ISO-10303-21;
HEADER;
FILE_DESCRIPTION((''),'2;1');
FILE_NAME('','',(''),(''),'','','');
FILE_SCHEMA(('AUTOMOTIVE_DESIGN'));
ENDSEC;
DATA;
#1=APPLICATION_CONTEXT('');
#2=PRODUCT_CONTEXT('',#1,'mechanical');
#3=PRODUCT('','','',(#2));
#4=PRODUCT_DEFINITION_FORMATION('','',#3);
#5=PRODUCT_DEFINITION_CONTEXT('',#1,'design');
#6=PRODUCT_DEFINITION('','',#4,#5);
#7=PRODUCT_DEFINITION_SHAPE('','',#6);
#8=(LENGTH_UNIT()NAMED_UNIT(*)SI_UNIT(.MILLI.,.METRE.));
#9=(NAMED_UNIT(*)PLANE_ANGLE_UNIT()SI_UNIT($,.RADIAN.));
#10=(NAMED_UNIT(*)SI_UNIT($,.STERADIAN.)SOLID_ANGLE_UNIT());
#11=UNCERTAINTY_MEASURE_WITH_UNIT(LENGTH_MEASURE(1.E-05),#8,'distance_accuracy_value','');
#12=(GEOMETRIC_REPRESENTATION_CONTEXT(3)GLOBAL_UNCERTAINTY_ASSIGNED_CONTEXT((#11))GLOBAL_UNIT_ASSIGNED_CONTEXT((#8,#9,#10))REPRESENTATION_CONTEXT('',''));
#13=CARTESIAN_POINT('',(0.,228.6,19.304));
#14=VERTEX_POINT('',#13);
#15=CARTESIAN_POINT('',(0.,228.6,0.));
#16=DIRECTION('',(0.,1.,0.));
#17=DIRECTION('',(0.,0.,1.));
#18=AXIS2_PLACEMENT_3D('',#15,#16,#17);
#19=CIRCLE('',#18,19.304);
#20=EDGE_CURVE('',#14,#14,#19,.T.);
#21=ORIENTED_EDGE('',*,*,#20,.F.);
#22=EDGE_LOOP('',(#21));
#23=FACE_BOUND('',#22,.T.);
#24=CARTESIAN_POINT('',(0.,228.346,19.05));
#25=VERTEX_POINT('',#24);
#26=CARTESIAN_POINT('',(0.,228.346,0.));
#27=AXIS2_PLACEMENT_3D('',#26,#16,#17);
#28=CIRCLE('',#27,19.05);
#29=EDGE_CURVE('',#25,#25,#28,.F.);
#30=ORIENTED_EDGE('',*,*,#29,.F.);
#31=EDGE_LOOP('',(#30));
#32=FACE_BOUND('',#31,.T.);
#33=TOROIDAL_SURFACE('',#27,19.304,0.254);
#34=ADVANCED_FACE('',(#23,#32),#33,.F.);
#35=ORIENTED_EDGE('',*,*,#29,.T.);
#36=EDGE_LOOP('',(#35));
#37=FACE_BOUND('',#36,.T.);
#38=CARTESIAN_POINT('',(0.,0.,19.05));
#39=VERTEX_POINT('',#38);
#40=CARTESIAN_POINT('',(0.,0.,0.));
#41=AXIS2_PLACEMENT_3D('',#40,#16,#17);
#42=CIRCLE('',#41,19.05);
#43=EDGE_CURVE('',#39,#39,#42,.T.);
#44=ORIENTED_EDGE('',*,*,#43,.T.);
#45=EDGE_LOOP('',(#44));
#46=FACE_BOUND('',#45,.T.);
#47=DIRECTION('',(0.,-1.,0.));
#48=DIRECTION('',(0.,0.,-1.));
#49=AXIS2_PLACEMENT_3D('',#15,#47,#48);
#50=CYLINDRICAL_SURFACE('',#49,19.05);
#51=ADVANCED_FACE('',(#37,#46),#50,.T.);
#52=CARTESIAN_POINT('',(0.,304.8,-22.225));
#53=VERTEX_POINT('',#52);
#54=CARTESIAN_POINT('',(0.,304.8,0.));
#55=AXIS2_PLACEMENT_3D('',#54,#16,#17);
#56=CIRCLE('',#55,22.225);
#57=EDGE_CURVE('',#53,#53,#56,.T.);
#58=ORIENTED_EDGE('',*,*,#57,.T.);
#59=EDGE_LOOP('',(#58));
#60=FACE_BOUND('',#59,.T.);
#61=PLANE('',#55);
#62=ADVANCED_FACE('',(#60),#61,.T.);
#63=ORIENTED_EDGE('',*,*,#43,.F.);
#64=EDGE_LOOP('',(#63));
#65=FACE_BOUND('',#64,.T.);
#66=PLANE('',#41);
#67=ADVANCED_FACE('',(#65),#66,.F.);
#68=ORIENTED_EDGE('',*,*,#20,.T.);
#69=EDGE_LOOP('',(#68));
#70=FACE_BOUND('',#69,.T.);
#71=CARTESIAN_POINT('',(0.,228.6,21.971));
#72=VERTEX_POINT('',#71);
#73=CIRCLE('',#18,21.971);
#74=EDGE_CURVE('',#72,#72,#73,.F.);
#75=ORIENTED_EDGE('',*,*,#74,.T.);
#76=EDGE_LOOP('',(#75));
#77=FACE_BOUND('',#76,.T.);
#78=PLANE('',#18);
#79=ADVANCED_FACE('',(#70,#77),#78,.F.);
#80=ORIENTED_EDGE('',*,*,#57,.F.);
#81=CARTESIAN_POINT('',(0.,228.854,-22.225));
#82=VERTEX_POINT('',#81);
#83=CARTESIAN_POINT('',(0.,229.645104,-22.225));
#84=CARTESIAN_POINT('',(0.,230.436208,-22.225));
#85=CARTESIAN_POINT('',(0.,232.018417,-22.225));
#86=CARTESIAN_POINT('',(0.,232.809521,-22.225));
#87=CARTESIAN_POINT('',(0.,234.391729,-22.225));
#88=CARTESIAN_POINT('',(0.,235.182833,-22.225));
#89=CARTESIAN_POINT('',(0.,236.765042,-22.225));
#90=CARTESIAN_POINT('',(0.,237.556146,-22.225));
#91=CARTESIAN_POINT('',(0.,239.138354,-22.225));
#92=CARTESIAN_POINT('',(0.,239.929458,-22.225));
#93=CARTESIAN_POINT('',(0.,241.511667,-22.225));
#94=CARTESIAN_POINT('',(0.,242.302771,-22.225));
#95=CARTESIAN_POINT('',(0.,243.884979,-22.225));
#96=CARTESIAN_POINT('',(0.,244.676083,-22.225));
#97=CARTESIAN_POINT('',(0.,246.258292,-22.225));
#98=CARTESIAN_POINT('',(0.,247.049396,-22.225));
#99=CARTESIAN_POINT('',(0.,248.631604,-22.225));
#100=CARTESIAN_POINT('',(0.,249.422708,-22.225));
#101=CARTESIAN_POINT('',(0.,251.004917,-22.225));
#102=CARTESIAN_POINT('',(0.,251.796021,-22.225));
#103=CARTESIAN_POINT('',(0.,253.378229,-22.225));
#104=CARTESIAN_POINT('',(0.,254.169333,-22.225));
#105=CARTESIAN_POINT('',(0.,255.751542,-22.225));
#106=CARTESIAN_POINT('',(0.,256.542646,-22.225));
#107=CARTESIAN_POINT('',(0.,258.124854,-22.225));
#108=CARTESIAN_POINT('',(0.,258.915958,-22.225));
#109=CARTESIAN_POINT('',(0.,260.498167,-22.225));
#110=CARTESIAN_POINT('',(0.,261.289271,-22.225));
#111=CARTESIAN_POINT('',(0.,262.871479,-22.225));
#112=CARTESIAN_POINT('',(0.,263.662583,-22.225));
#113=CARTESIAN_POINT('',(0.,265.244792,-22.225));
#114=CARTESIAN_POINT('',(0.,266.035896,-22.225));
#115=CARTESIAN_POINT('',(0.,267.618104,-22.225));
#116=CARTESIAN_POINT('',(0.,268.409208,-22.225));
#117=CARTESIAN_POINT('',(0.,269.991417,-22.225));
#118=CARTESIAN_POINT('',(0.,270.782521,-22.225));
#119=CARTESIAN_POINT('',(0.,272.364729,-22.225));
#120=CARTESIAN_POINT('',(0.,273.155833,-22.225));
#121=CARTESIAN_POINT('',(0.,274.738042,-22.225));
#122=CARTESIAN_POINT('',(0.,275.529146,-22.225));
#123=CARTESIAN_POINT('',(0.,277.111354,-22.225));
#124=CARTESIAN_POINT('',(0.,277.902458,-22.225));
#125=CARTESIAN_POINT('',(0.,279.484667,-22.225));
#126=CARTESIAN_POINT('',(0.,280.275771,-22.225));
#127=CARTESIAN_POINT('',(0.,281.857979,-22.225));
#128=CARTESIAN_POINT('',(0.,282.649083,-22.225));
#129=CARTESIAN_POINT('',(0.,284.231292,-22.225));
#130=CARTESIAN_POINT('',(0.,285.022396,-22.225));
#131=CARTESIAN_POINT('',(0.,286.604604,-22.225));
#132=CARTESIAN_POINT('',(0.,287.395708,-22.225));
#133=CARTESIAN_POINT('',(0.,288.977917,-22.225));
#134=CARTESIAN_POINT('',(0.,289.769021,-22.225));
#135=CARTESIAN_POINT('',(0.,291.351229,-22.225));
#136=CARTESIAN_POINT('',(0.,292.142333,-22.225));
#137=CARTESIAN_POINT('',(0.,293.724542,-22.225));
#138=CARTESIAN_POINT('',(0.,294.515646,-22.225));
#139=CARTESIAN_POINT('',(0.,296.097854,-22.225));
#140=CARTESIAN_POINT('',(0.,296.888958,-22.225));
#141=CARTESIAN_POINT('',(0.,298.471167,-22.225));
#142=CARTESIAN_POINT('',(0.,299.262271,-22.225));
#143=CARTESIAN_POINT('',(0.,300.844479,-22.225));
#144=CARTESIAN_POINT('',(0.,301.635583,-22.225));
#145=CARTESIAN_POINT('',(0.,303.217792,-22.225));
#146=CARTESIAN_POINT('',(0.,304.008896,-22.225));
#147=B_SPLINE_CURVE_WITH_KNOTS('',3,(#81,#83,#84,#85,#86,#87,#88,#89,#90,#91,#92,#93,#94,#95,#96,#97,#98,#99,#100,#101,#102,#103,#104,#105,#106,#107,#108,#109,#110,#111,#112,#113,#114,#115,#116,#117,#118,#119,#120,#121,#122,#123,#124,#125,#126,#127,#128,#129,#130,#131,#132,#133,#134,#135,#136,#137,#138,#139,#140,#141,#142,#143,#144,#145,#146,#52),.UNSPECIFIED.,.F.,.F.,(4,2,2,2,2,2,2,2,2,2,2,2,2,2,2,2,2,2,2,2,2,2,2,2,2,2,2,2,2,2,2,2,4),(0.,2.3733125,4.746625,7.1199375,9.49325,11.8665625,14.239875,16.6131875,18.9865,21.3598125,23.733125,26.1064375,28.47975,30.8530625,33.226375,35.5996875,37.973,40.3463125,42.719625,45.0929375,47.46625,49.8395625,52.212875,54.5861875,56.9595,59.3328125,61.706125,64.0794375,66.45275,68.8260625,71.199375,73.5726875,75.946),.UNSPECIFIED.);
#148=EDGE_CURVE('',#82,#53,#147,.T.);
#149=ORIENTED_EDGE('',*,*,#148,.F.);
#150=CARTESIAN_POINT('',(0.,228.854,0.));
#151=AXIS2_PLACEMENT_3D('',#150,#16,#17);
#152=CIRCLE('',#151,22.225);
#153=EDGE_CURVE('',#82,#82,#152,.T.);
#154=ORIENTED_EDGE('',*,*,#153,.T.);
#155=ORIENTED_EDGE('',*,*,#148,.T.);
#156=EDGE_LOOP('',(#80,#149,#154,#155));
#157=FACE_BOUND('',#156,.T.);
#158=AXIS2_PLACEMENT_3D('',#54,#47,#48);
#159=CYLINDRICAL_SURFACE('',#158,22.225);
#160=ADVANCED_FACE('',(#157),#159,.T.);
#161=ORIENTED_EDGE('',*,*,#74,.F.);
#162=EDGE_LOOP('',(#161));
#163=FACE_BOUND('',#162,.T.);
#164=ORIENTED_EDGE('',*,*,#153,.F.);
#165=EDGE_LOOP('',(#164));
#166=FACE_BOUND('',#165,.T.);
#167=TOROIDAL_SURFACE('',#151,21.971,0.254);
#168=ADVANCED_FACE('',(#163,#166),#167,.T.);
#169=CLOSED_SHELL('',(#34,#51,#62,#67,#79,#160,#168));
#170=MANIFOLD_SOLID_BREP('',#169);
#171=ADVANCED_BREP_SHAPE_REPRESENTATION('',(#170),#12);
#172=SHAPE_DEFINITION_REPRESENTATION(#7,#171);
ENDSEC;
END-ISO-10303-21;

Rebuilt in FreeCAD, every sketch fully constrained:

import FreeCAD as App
import Part
import Sketcher
from FreeCAD import Vector
Q = App.Units.Quantity


def edges_at(feature, points):
    """Names of the edges that pass closest to the given points."""
    edges = feature.Shape.Edges
    near = lambda p: min(range(len(edges)), key=lambda i: edges[i].distToShape(Part.Vertex(*p))[0])
    return sorted({f"Edge{near(p) + 1}" for p in points})

doc = App.newDocument("Part")
body = doc.addObject("PartDesign::Body", "Body")

# Sketch on XZ plane
sketch1 = body.newObject("Sketcher::SketchObject", "Sketch")
sketch1.AttachmentSupport = (doc.getObject("XZ_Plane"), [""])
sketch1.MapMode = "FlatFace"
sketch1.addGeometry(Part.Circle(Vector(0, 0, 0), Vector(0, 0, 1), 19.05), False)
sketch1.addConstraint([
    Sketcher.Constraint("Coincident", 0, 3, -1, 1),
    Sketcher.Constraint("Diameter", 0, Q("1.5 in")),
])
pad1 = body.newObject("PartDesign::Pad", "Pad")
pad1.Profile = sketch1
pad1.Length = Q("9 in")
pad1.Reversed = True

# Sketch on XZ plane
sketch2 = body.newObject("Sketcher::SketchObject", "Sketch001")
sketch2.AttachmentSupport = (doc.getObject("XZ_Plane"), [""])
sketch2.MapMode = "FlatFace"
sketch2.AttachmentOffset = App.Placement(Vector(0, 0, -9 * 25.4), App.Rotation())
sketch2.addGeometry(Part.Circle(Vector(0, 0, 0), Vector(0, 0, 1), 22.225), False)
sketch2.addConstraint([
    Sketcher.Constraint("Coincident", 0, 3, -1, 1),
    Sketcher.Constraint("Diameter", 0, Q("1.75 in")),
])
pad2 = body.newObject("PartDesign::Pad", "Pad001")
pad2.Profile = sketch2
pad2.Length = Q("3 in")
pad2.Reversed = True
doc.recompute()

fillet = body.newObject("PartDesign::Fillet", "Fillet")
fillet.Base = (pad2, edges_at(pad2, [(0, 228.6, -19.05), (0, 228.6, 22.225)]))
fillet.Radius = Q("0.01 in")

doc.recompute()
